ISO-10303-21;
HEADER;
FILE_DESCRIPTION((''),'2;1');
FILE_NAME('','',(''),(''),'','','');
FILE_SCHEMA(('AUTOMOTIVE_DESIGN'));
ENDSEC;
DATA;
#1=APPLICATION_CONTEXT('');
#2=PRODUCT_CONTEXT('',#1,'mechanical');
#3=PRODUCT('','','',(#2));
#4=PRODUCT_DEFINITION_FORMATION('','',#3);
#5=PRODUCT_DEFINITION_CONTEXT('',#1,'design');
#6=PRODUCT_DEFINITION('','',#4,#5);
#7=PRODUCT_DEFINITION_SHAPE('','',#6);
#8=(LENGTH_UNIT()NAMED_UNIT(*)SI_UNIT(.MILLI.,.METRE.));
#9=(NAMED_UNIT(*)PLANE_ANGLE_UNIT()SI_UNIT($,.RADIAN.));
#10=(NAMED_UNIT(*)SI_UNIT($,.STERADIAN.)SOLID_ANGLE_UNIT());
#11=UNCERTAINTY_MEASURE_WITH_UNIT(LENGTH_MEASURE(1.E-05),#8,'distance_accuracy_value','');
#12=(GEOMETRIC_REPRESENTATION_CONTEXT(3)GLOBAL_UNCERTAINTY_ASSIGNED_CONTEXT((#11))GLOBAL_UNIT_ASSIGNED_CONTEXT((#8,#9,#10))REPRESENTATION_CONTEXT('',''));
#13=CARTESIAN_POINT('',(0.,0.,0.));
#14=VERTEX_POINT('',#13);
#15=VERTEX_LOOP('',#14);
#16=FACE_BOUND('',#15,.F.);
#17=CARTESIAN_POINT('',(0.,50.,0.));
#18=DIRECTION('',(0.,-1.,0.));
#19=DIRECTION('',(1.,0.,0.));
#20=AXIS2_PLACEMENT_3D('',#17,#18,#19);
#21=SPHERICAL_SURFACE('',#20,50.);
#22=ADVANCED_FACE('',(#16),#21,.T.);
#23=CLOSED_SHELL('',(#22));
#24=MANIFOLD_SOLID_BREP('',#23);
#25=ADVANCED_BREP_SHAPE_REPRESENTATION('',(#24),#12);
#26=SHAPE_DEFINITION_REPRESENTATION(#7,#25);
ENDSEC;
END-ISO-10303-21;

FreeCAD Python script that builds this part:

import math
import FreeCAD as App
import Part
import Sketcher
Q = App.Units.Quantity

doc = App.newDocument("Part")
body = doc.addObject("PartDesign::Body", "Body")

sketch1 = body.newObject("Sketcher::SketchObject", "Sketch")
sketch1.AttachmentSupport = (doc.getObject("XY_Plane"), [""])
sketch1.MapMode = "FlatFace"
sketch1.addGeometry(Part.LineSegment(App.Vector(0, 100, 0), App.Vector(0, 0, 0)), False)
sketch1.addGeometry(Part.ArcOfCircle(Part.Circle(App.Vector(0, 50, 0), App.Vector(0, 0, 1), 50), math.radians(-90), math.radians(90)), False)
sketch1.addConstraint(Sketcher.Constraint("Coincident", 0, 1, 1, 2))
sketch1.addConstraint(Sketcher.Constraint("Coincident", 1, 1, 0, 2))
sketch1.addConstraint(Sketcher.Constraint("Vertical", 0))
sketch1.addConstraint(Sketcher.Constraint("Coincident", 1, 1, -1, 1))
sketch1.addConstraint(Sketcher.Constraint("PointOnObject", 1, 3, -2))
sketch1.addConstraint(Sketcher.Constraint("Radius", 1, Q("50 mm")))
revolution = body.newObject("PartDesign::Revolution", "Revolution")
revolution.Profile = sketch1
revolution.ReferenceAxis = (sketch1, ["V_Axis"])
revolution.Angle = 360

doc.recompute()
